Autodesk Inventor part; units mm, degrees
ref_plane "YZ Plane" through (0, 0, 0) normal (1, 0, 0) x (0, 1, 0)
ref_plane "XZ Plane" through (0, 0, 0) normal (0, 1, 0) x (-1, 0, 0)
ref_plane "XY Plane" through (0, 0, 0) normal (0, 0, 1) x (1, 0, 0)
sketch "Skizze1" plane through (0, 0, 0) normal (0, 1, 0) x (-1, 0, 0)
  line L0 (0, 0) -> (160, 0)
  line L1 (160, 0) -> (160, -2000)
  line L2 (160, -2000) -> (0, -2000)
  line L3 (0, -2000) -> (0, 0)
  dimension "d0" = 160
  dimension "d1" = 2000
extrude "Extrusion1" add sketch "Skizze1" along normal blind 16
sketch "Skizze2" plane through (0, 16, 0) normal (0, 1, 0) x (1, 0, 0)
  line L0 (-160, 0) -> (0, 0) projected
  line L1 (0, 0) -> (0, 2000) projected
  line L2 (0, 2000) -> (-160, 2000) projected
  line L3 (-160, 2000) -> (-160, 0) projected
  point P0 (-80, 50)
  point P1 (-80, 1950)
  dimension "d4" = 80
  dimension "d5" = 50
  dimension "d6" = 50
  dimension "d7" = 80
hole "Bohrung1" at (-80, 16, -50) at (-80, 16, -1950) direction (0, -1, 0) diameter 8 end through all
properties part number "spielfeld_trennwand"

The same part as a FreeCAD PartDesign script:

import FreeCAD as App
import Part
import Sketcher

V = App.Vector
Q = App.Units.Quantity


def add_polygon(sketch, points):
    """Adds a closed chain of lines whose ends are joined by coincident constraints."""
    first, n = sketch.GeometryCount, len(points)
    for a, b in zip(points, points[1:] + points[:1]):
        sketch.addGeometry(Part.LineSegment(App.Vector(*a, 0), App.Vector(*b, 0)), False)
    for i in range(n):
        sketch.addConstraint(Sketcher.Constraint("Coincident", first + i, 2, first + (i + 1) % n, 1))

doc = App.newDocument("Part")
params = doc.addObject("Spreadsheet::Sheet", "Params")
for row, (alias, value) in enumerate([
    ("sketch1_width", "160 mm"),
    ("sketch1_height", "2000 mm"),
    ("pad1_length", "16 mm"),
    ("sketch2_diameter", "8 mm"),
    ("hole_diameter", "8 mm"),
], start=1):
    params.set(f"A{row}", alias)
    params.set(f"B{row}", "=" + value)
    params.setAlias(f"B{row}", alias)

body = doc.addObject("PartDesign::Body", "Body")

# Sketch on XZ plane
sketch1 = body.newObject("Sketcher::SketchObject", "Sketch")
sketch1.AttachmentSupport = (doc.getObject("XZ_Plane"), [""])
sketch1.MapMode = "FlatFace"
add_polygon(sketch1, [(-160, 0), (0, 0), (0, -2000), (-160, -2000)])  # lines 0-3
sketch1.addConstraint(Sketcher.Constraint("Horizontal", 0))
sketch1.addConstraint(Sketcher.Constraint("Vertical", 1))
sketch1.addConstraint(Sketcher.Constraint("Horizontal", 2))
sketch1.addConstraint(Sketcher.Constraint("Vertical", 3))
sketch1.addConstraint(Sketcher.Constraint("Coincident", 0, 2, -1, 1))
sketch1.addConstraint(Sketcher.Constraint("DistanceX", 0, 1, 0, 2, Q("160 mm")))
sketch1.addConstraint(Sketcher.Constraint("DistanceY", 1, 2, 1, 1, Q("2000 mm")))
sketch1.setExpression("Constraints[9]", "Params.sketch1_width")
sketch1.setExpression("Constraints[10]", "Params.sketch1_height")
pad1 = body.newObject("PartDesign::Pad", "Pad")
pad1.Profile = sketch1
pad1.setExpression("Length", "Params.pad1_length")
pad1.Reversed = True

# Sketch on XZ plane
sketch2 = body.newObject("Sketcher::SketchObject", "Sketch001")
sketch2.AttachmentSupport = (doc.getObject("XZ_Plane"), [""])
sketch2.MapMode = "FlatFace"
sketch2.AttachmentOffset = App.Placement(V(0, 0, -16), App.Rotation())
sketch2.addGeometry(Part.Circle(V(-80, -50, 0), V(0, 0, 1), 4), False)
sketch2.addGeometry(Part.Circle(V(-80, -1950, 0), V(0, 0, 1), 4), False)
sketch2.addConstraint(Sketcher.Constraint("Equal", 0, 1))
sketch2.addConstraint(Sketcher.Constraint("Vertical", 0, 3, 1, 3))
sketch2.addConstraint(Sketcher.Constraint("Diameter", 0, Q("8 mm")))
sketch2.addConstraint(Sketcher.Constraint("DistanceX", 0, 3, -1, 1, Q("80 mm")))
sketch2.addConstraint(Sketcher.Constraint("DistanceY", 0, 3, -1, 1, Q("50 mm")))
sketch2.addConstraint(Sketcher.Constraint("DistanceY", 1, 3, -1, 1, Q("1950 mm")))
sketch2.setExpression("Constraints[2]", "Params.sketch2_diameter")
doc.recompute()
hole = body.newObject("PartDesign::Hole", "Hole")
hole.Profile = sketch2
hole.ThreadType = "None"
hole.setExpression("Diameter", "Params.hole_diameter")
hole.DepthType = "ThroughAll"
hole.Reversed = True

doc.recompute()
